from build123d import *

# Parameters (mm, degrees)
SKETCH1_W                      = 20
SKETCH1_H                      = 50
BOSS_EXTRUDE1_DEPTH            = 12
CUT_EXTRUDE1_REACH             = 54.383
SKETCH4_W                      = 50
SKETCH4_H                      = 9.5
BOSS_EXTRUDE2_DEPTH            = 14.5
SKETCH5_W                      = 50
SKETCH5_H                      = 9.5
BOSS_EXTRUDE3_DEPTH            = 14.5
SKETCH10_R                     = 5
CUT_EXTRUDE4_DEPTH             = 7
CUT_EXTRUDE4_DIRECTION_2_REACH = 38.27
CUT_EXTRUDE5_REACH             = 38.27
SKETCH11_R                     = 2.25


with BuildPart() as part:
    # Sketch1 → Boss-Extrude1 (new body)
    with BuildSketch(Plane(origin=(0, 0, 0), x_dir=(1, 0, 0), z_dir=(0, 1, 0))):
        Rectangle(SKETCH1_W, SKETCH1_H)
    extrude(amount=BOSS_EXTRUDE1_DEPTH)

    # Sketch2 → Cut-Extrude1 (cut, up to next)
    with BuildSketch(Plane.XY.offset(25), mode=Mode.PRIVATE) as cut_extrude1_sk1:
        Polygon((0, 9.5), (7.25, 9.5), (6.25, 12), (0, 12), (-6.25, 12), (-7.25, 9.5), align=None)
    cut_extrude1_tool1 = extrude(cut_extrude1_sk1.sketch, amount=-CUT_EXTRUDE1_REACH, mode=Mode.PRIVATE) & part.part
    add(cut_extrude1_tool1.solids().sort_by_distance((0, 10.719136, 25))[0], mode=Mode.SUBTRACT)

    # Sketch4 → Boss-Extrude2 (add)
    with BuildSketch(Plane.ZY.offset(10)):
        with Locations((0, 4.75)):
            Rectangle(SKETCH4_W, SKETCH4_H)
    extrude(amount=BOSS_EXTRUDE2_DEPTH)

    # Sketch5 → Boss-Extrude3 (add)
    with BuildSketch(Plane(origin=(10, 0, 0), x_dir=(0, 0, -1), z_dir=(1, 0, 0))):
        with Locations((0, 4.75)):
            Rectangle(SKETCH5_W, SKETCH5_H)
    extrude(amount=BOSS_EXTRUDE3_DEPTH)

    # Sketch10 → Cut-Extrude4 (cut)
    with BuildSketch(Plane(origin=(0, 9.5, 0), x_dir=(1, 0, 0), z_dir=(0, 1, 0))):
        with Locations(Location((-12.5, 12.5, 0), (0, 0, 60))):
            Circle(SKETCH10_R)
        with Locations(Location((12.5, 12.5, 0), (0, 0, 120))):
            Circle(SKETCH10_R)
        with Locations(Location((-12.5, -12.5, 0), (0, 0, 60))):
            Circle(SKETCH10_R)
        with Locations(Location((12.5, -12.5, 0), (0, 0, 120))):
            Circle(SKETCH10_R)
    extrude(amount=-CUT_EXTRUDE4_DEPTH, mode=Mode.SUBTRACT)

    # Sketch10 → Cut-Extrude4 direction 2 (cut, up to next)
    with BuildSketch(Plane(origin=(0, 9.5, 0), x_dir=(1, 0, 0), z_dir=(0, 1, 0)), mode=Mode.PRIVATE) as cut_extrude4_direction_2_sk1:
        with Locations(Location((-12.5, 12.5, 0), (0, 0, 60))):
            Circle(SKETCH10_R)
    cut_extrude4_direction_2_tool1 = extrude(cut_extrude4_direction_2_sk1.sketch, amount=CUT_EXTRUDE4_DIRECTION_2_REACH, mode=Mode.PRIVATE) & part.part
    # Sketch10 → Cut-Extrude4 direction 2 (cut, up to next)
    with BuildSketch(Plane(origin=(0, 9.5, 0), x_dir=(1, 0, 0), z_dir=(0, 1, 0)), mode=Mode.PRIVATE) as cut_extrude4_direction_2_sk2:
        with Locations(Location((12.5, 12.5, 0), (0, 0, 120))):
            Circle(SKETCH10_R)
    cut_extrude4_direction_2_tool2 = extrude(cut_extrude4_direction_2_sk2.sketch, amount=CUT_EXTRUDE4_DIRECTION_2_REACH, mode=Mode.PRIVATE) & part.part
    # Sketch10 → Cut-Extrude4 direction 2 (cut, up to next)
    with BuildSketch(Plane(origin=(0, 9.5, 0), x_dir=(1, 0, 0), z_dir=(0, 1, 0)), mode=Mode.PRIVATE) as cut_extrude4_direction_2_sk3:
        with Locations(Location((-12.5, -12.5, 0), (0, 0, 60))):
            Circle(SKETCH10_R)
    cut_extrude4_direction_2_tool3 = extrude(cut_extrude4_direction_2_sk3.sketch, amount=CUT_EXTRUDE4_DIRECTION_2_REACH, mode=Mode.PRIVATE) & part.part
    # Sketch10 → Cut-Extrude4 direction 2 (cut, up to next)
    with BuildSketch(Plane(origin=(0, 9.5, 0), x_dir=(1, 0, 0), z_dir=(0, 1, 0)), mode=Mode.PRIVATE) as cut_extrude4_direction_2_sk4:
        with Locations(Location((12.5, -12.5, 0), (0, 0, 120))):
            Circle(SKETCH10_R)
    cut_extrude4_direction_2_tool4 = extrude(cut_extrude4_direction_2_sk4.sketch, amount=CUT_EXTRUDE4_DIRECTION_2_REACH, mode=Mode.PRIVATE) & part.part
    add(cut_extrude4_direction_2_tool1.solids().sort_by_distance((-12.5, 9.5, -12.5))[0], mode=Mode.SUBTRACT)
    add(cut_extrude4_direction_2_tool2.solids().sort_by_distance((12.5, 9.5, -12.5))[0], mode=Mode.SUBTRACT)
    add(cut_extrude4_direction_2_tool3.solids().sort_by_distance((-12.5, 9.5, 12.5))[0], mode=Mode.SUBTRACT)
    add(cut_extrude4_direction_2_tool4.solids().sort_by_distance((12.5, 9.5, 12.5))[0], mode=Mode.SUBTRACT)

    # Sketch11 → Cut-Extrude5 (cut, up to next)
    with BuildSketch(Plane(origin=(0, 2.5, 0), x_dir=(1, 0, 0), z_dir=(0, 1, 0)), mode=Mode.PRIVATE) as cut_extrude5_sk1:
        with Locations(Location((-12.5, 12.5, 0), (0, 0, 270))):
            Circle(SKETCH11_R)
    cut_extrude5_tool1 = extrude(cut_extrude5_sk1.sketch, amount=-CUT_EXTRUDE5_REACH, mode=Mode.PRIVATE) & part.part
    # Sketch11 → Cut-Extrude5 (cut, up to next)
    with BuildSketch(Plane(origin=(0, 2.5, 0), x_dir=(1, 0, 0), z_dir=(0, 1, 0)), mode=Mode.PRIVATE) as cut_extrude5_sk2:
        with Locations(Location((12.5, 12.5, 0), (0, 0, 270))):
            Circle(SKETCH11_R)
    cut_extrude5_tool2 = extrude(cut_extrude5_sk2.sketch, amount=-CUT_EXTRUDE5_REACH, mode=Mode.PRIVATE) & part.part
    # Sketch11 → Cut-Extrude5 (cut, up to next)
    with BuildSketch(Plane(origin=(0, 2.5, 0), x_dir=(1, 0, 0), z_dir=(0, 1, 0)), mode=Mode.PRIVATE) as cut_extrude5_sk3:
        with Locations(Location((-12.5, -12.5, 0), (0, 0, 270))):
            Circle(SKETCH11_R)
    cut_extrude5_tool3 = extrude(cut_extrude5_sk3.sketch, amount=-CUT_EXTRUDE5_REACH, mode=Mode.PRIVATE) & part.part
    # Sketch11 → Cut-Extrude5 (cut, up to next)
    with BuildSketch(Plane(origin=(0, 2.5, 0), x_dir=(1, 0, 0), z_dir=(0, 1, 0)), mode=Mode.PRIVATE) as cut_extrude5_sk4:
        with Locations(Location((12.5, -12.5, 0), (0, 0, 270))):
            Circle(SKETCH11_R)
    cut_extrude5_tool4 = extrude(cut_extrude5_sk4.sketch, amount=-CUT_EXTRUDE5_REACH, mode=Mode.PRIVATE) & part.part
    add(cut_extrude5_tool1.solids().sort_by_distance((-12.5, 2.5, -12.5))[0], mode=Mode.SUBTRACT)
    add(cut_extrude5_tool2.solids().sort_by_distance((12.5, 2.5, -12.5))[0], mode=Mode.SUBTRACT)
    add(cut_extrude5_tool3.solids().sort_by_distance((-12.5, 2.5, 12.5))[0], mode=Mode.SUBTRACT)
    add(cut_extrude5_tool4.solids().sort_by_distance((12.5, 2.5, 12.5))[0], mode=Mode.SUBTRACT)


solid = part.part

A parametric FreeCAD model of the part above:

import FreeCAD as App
import Part
import Sketcher
from FreeCAD import Vector


def add_polygon(sketch, points):
    """Adds a closed chain of lines whose ends are joined by coincident constraints."""
    first, n = sketch.GeometryCount, len(points)
    for a, b in zip(points, points[1:] + points[:1]):
        sketch.addGeometry(Part.LineSegment(App.Vector(*a, 0), App.Vector(*b, 0)), False)
    for i in range(n):
        sketch.addConstraint(Sketcher.Constraint("Coincident", first + i, 2, first + (i + 1) % n, 1))

doc = App.newDocument("Part")
params = doc.addObject("Spreadsheet::Sheet", "Params")
for row, (alias, value) in enumerate([
    ("sketch1_width", "20 mm"),
    ("sketch1_height", "50 mm"),
    ("pad1_length", "12 mm"),
    ("sketch2_width", "12.5 mm"),
    ("sketch2_width2", "14.5 mm"),
    ("sketch3_height", "50 mm"),
    ("sketch3_width", "9.5 mm"),
    ("pad2_length", "14.5 mm"),
    ("sketch4_height", "50 mm"),
    ("sketch4_width", "9.5 mm"),
    ("pad3_length", "14.5 mm"),
    ("sketch5_diameter", "10 mm"),
    ("pocket2_length", "7 mm"),
    ("sketch6_diameter", "10 mm"),
    ("pocket3_length", "2.5 mm"),
    ("sketch7_diameter", "10 mm"),
    ("pocket4_length", "2.5 mm"),
    ("sketch8_diameter", "10 mm"),
    ("pocket5_length", "2.5 mm"),
    ("sketch9_diameter", "10 mm"),
    ("pocket6_length", "2.5 mm"),
    ("sketch10_diameter", "4.5 mm"),
    ("sketch11_diameter", "4.5 mm"),
    ("sketch12_diameter", "4.5 mm"),
    ("sketch13_diameter", "4.5 mm"),
], start=1):
    params.set(f"A{row}", alias)
    params.set(f"B{row}", "=" + value)
    params.setAlias(f"B{row}", alias)

body = doc.addObject("PartDesign::Body", "Body")

sketch1 = doc.addObject("Sketcher::SketchObject", "Sketch")
body.addObject(sketch1)
sketch1.AttachmentSupport = (doc.XZ_Plane, [""])
sketch1.MapMode = "FlatFace"
add_polygon(sketch1, [(-10, -25), (-10, 25), (10, 25), (10, -25)])
sketch1.addConstraint([
    Sketcher.Constraint("Vertical", 0),
    Sketcher.Constraint("Horizontal", 1),
    Sketcher.Constraint("Vertical", 2),
    Sketcher.Constraint("Horizontal", 3),
    Sketcher.Constraint("Symmetric", 0, 2, 2, 2, -1, 1),
    Sketcher.Constraint("DistanceX", 1, 1, 1, 2, 20.0),
    Sketcher.Constraint("DistanceY", 0, 1, 0, 2, 50.0),
])
sketch1.setExpression("Constraints[9]", "Params.sketch1_width")
sketch1.setExpression("Constraints[10]", "Params.sketch1_height")
pad1 = doc.addObject("PartDesign::Pad", "Pad")
body.addObject(pad1)
pad1.Profile = sketch1
pad1.setExpression("Length", "Params.pad1_length")
pad1.Reversed = True

sketch2 = doc.addObject("Sketcher::SketchObject", "Sketch001")
body.addObject(sketch2)
sketch2.AttachmentSupport = (doc.XY_Plane, [""])
sketch2.MapMode = "FlatFace"
sketch2.AttachmentOffset = App.Placement(Vector(0, 0, 25), App.Rotation())
add_polygon(sketch2, [(7.2, 9.5), (6.2, 12), (-6.2, 12), (-7.2, 9.5)])
sketch2.addConstraint([
    Sketcher.Constraint("Horizontal", 1),
    Sketcher.Constraint("Horizontal", 3),
    Sketcher.Constraint("Equal", 0, 2),
    Sketcher.Constraint("DistanceX", 1, 2, 1, 1, 12.5),
    Sketcher.Constraint("DistanceX", 3, 1, 3, 2, 14.5),
    Sketcher.Constraint("DistanceY", -1, 1, 0, 2, 12.0),
    Sketcher.Constraint("DistanceY", -1, 1, 2, 2, 9.5),
    Sketcher.Constraint("DistanceX", -1, 1, 0, 2, 6.25),
])
sketch2.setExpression("Constraints[7]", "Params.sketch2_width")
sketch2.setExpression("Constraints[8]", "Params.sketch2_width2")
pocket1 = doc.addObject("PartDesign::Pocket", "Pocket")
body.addObject(pocket1)
pocket1.Profile = sketch2
pocket1.Type = "UpToFirst"

sketch3 = doc.addObject("Sketcher::SketchObject", "Sketch002")
body.addObject(sketch3)
sketch3.AttachmentSupport = (doc.YZ_Plane, [""])
sketch3.MapMode = "FlatFace"
sketch3.AttachmentOffset = App.Placement(Vector(0, 0, -10), App.Rotation())
add_polygon(sketch3, [(10, -25), (0, -25), (0, 25), (10, 25)])
sketch3.addConstraint([
    Sketcher.Constraint("Horizontal", 0),
    Sketcher.Constraint("Vertical", 1),
    Sketcher.Constraint("Horizontal", 2),
    Sketcher.Constraint("Vertical", 3),
    Sketcher.Constraint("Symmetric", 0, 2, 1, 2, -1, 1),
    Sketcher.Constraint("DistanceY", 1, 1, 1, 2, 50.0),
    Sketcher.Constraint("DistanceX", 0, 2, 0, 1, 9.5),
])
sketch3.setExpression("Constraints[9]", "Params.sketch3_height")
sketch3.setExpression("Constraints[10]", "Params.sketch3_width")
pad2 = doc.addObject("PartDesign::Pad", "Pad001")
body.addObject(pad2)
pad2.Profile = sketch3
pad2.setExpression("Length", "Params.pad2_length")
pad2.Reversed = True

sketch4 = doc.addObject("Sketcher::SketchObject", "Sketch003")
body.addObject(sketch4)
sketch4.AttachmentSupport = (doc.YZ_Plane, [""])
sketch4.MapMode = "FlatFace"
sketch4.AttachmentOffset = App.Placement(Vector(0, 0, 10), App.Rotation())
add_polygon(sketch4, [(10, 25), (0, 25), (0, -25), (10, -25)])
sketch4.addConstraint([
    Sketcher.Constraint("Horizontal", 0),
    Sketcher.Constraint("Vertical", 1),
    Sketcher.Constraint("Horizontal", 2),
    Sketcher.Constraint("Vertical", 3),
    Sketcher.Constraint("Symmetric", 0, 2, 1, 2, -1, 1),
    Sketcher.Constraint("DistanceY", 1, 2, 1, 1, 50.0),
    Sketcher.Constraint("DistanceX", 0, 2, 0, 1, 9.5),
])
sketch4.setExpression("Constraints[9]", "Params.sketch4_height")
sketch4.setExpression("Constraints[10]", "Params.sketch4_width")
pad3 = doc.addObject("PartDesign::Pad", "Pad002")
body.addObject(pad3)
pad3.Profile = sketch4
pad3.setExpression("Length", "Params.pad3_length")

sketch5 = doc.addObject("Sketcher::SketchObject", "Sketch004")
body.addObject(sketch5)
sketch5.AttachmentSupport = (doc.XZ_Plane, [""])
sketch5.MapMode = "FlatFace"
sketch5.AttachmentOffset = App.Placement(Vector(0, 0, -9.5), App.Rotation())
sketch5.addGeometry([
    Part.Circle(Vector(-12, -12, 0), Vector(0, 0, 1), 5),
    Part.Circle(Vector(12, -12, 0), Vector(0, 0, 1), 5),
    Part.Circle(Vector(-12, 12, 0), Vector(0, 0, 1), 5),
    Part.Circle(Vector(12, 12, 0), Vector(0, 0, 1), 5),
], False)
sketch5.addConstraint([
    Sketcher.Constraint("Equal", 0, 1),
    Sketcher.Constraint("Equal", 1, 2),
    Sketcher.Constraint("Equal", 2, 3),
    Sketcher.Constraint("Symmetric", 1, 3, 2, 3, -1, 1),
    Sketcher.Constraint("Symmetric", 0, 3, 3, 3, -1, 1),
    Sketcher.Constraint("Symmetric", 0, 3, 1, 3, -2),
    Sketcher.Constraint("Diameter", 0, 10.0),
    Sketcher.Constraint("DistanceX", 0, 3, 1, 3, 25.0),
    Sketcher.Constraint("DistanceY", 0, 3, 2, 3, 25.0),
])
sketch5.setExpression("Constraints[6]", "Params.sketch5_diameter")
pocket2 = doc.addObject("PartDesign::Pocket", "Pocket001")
body.addObject(pocket2)
pocket2.Profile = sketch5
pocket2.setExpression("Length", "Params.pocket2_length")
pocket2.Reversed = True

sketch6 = doc.addObject("Sketcher::SketchObject", "Sketch005")
body.addObject(sketch6)
sketch6.AttachmentSupport = (doc.XZ_Plane, [""])
sketch6.MapMode = "FlatFace"
sketch6.AttachmentOffset = App.Placement(Vector(0, 0, -9.5), App.Rotation())
sketch6.addGeometry(Part.Circle(Vector(-12, -12, 0), Vector(0, 0, 1), 5), False)
sketch6.addConstraint([
    Sketcher.Constraint("Diameter", 0, 10.0),
    Sketcher.Constraint("DistanceX", 0, 3, -1, 1, 12.5),
    Sketcher.Constraint("DistanceY", 0, 3, -1, 1, 12.5),
])
sketch6.setExpression("Constraints[0]", "Params.sketch6_diameter")
pocket3 = doc.addObject("PartDesign::Pocket", "Pocket002")
body.addObject(pocket3)
pocket3.Profile = sketch6
pocket3.setExpression("Length", "Params.pocket3_length")

sketch7 = doc.addObject("Sketcher::SketchObject", "Sketch006")
body.addObject(sketch7)
sketch7.AttachmentSupport = (doc.XZ_Plane, [""])
sketch7.MapMode = "FlatFace"
sketch7.AttachmentOffset = App.Placement(Vector(0, 0, -9.5), App.Rotation())
sketch7.addGeometry(Part.Circle(Vector(12, -12, 0), Vector(0, 0, 1), 5), False)
sketch7.addConstraint([
    Sketcher.Constraint("Diameter", 0, 10.0),
    Sketcher.Constraint("DistanceX", -1, 1, 0, 3, 12.5),
    Sketcher.Constraint("DistanceY", 0, 3, -1, 1, 12.5),
])
sketch7.setExpression("Constraints[0]", "Params.sketch7_diameter")
pocket4 = doc.addObject("PartDesign::Pocket", "Pocket003")
body.addObject(pocket4)
pocket4.Profile = sketch7
pocket4.setExpression("Length", "Params.pocket4_length")

sketch8 = doc.addObject("Sketcher::SketchObject", "Sketch007")
body.addObject(sketch8)
sketch8.AttachmentSupport = (doc.XZ_Plane, [""])
sketch8.MapMode = "FlatFace"
sketch8.AttachmentOffset = App.Placement(Vector(0, 0, -9.5), App.Rotation())
sketch8.addGeometry(Part.Circle(Vector(-12, 12, 0), Vector(0, 0, 1), 5), False)
sketch8.addConstraint([
    Sketcher.Constraint("Diameter", 0, 10.0),
    Sketcher.Constraint("DistanceX", 0, 3, -1, 1, 12.5),
    Sketcher.Constraint("DistanceY", -1, 1, 0, 3, 12.5),
])
sketch8.setExpression("Constraints[0]", "Params.sketch8_diameter")
pocket5 = doc.addObject("PartDesign::Pocket", "Pocket004")
body.addObject(pocket5)
pocket5.Profile = sketch8
pocket5.setExpression("Length", "Params.pocket5_length")

sketch9 = doc.addObject("Sketcher::SketchObject", "Sketch008")
body.addObject(sketch9)
sketch9.AttachmentSupport = (doc.XZ_Plane, [""])
sketch9.MapMode = "FlatFace"
sketch9.AttachmentOffset = App.Placement(Vector(0, 0, -9.5), App.Rotation())
sketch9.addGeometry(Part.Circle(Vector(12, 12, 0), Vector(0, 0, 1), 5), False)
sketch9.addConstraint([
    Sketcher.Constraint("Diameter", 0, 10.0),
    Sketcher.Constraint("DistanceX", -1, 1, 0, 3, 12.5),
    Sketcher.Constraint("DistanceY", -1, 1, 0, 3, 12.5),
])
sketch9.setExpression("Constraints[0]", "Params.sketch9_diameter")
pocket6 = doc.addObject("PartDesign::Pocket", "Pocket005")
body.addObject(pocket6)
pocket6.Profile = sketch9
pocket6.setExpression("Length", "Params.pocket6_length")

sketch10 = doc.addObject("Sketcher::SketchObject", "Sketch009")
body.addObject(sketch10)
sketch10.AttachmentSupport = (doc.XZ_Plane, [""])
sketch10.MapMode = "FlatFace"
sketch10.AttachmentOffset = App.Placement(Vector(0, 0, -2.5), App.Rotation())
sketch10.addGeometry(Part.Circle(Vector(-12.5, -12.5, 0), Vector(0, 0, 1), 2.2), False)
sketch10.addConstraint([
    Sketcher.Constraint("Diameter", 0, 4.5),
    Sketcher.Constraint("DistanceX", 0, 3, -1, 1, 12.5),
    Sketcher.Constraint("DistanceY", 0, 3, -1, 1, 12.5),
])
sketch10.setExpression("Constraints[0]", "Params.sketch10_diameter")
pocket7 = doc.addObject("PartDesign::Pocket", "Pocket006")
body.addObject(pocket7)
pocket7.Profile = sketch10
pocket7.Type = "UpToFirst"
pocket7.Reversed = True

sketch11 = doc.addObject("Sketcher::SketchObject", "Sketch010")
body.addObject(sketch11)
sketch11.AttachmentSupport = (doc.XZ_Plane, [""])
sketch11.MapMode = "FlatFace"
sketch11.AttachmentOffset = App.Placement(Vector(0, 0, -2.5), App.Rotation())
sketch11.addGeometry(Part.Circle(Vector(12.5, -12.5, 0), Vector(0, 0, 1), 2.2), False)
sketch11.addConstraint([
    Sketcher.Constraint("Diameter", 0, 4.5),
    Sketcher.Constraint("DistanceX", -1, 1, 0, 3, 12.5),
    Sketcher.Constraint("DistanceY", 0, 3, -1, 1, 12.5),
])
sketch11.setExpression("Constraints[0]", "Params.sketch11_diameter")
pocket8 = doc.addObject("PartDesign::Pocket", "Pocket007")
body.addObject(pocket8)
pocket8.Profile = sketch11
pocket8.Type = "UpToFirst"
pocket8.Reversed = True

sketch12 = doc.addObject("Sketcher::SketchObject", "Sketch011")
body.addObject(sketch12)
sketch12.AttachmentSupport = (doc.XZ_Plane, [""])
sketch12.MapMode = "FlatFace"
sketch12.AttachmentOffset = App.Placement(Vector(0, 0, -2.5), App.Rotation())
sketch12.addGeometry(Part.Circle(Vector(-12.5, 12.5, 0), Vector(0, 0, 1), 2.2), False)
sketch12.addConstraint([
    Sketcher.Constraint("Diameter", 0, 4.5),
    Sketcher.Constraint("DistanceX", 0, 3, -1, 1, 12.5),
    Sketcher.Constraint("DistanceY", -1, 1, 0, 3, 12.5),
])
sketch12.setExpression("Constraints[0]", "Params.sketch12_diameter")
pocket9 = doc.addObject("PartDesign::Pocket", "Pocket008")
body.addObject(pocket9)
pocket9.Profile = sketch12
pocket9.Type = "UpToFirst"
pocket9.Reversed = True

sketch13 = doc.addObject("Sketcher::SketchObject", "Sketch012")
body.addObject(sketch13)
sketch13.AttachmentSupport = (doc.XZ_Plane, [""])
sketch13.MapMode = "FlatFace"
sketch13.AttachmentOffset = App.Placement(Vector(0, 0, -2.5), App.Rotation())
sketch13.addGeometry(Part.Circle(Vector(12.5, 12.5, 0), Vector(0, 0, 1), 2.2), False)
sketch13.addConstraint([
    Sketcher.Constraint("Diameter", 0, 4.5),
    Sketcher.Constraint("DistanceX", -1, 1, 0, 3, 12.5),
    Sketcher.Constraint("DistanceY", -1, 1, 0, 3, 12.5),
])
sketch13.setExpression("Constraints[0]", "Params.sketch13_diameter")
pocket10 = doc.addObject("PartDesign::Pocket", "Pocket009")
body.addObject(pocket10)
pocket10.Profile = sketch13
pocket10.Type = "UpToFirst"
pocket10.Reversed = True

doc.recompute()
